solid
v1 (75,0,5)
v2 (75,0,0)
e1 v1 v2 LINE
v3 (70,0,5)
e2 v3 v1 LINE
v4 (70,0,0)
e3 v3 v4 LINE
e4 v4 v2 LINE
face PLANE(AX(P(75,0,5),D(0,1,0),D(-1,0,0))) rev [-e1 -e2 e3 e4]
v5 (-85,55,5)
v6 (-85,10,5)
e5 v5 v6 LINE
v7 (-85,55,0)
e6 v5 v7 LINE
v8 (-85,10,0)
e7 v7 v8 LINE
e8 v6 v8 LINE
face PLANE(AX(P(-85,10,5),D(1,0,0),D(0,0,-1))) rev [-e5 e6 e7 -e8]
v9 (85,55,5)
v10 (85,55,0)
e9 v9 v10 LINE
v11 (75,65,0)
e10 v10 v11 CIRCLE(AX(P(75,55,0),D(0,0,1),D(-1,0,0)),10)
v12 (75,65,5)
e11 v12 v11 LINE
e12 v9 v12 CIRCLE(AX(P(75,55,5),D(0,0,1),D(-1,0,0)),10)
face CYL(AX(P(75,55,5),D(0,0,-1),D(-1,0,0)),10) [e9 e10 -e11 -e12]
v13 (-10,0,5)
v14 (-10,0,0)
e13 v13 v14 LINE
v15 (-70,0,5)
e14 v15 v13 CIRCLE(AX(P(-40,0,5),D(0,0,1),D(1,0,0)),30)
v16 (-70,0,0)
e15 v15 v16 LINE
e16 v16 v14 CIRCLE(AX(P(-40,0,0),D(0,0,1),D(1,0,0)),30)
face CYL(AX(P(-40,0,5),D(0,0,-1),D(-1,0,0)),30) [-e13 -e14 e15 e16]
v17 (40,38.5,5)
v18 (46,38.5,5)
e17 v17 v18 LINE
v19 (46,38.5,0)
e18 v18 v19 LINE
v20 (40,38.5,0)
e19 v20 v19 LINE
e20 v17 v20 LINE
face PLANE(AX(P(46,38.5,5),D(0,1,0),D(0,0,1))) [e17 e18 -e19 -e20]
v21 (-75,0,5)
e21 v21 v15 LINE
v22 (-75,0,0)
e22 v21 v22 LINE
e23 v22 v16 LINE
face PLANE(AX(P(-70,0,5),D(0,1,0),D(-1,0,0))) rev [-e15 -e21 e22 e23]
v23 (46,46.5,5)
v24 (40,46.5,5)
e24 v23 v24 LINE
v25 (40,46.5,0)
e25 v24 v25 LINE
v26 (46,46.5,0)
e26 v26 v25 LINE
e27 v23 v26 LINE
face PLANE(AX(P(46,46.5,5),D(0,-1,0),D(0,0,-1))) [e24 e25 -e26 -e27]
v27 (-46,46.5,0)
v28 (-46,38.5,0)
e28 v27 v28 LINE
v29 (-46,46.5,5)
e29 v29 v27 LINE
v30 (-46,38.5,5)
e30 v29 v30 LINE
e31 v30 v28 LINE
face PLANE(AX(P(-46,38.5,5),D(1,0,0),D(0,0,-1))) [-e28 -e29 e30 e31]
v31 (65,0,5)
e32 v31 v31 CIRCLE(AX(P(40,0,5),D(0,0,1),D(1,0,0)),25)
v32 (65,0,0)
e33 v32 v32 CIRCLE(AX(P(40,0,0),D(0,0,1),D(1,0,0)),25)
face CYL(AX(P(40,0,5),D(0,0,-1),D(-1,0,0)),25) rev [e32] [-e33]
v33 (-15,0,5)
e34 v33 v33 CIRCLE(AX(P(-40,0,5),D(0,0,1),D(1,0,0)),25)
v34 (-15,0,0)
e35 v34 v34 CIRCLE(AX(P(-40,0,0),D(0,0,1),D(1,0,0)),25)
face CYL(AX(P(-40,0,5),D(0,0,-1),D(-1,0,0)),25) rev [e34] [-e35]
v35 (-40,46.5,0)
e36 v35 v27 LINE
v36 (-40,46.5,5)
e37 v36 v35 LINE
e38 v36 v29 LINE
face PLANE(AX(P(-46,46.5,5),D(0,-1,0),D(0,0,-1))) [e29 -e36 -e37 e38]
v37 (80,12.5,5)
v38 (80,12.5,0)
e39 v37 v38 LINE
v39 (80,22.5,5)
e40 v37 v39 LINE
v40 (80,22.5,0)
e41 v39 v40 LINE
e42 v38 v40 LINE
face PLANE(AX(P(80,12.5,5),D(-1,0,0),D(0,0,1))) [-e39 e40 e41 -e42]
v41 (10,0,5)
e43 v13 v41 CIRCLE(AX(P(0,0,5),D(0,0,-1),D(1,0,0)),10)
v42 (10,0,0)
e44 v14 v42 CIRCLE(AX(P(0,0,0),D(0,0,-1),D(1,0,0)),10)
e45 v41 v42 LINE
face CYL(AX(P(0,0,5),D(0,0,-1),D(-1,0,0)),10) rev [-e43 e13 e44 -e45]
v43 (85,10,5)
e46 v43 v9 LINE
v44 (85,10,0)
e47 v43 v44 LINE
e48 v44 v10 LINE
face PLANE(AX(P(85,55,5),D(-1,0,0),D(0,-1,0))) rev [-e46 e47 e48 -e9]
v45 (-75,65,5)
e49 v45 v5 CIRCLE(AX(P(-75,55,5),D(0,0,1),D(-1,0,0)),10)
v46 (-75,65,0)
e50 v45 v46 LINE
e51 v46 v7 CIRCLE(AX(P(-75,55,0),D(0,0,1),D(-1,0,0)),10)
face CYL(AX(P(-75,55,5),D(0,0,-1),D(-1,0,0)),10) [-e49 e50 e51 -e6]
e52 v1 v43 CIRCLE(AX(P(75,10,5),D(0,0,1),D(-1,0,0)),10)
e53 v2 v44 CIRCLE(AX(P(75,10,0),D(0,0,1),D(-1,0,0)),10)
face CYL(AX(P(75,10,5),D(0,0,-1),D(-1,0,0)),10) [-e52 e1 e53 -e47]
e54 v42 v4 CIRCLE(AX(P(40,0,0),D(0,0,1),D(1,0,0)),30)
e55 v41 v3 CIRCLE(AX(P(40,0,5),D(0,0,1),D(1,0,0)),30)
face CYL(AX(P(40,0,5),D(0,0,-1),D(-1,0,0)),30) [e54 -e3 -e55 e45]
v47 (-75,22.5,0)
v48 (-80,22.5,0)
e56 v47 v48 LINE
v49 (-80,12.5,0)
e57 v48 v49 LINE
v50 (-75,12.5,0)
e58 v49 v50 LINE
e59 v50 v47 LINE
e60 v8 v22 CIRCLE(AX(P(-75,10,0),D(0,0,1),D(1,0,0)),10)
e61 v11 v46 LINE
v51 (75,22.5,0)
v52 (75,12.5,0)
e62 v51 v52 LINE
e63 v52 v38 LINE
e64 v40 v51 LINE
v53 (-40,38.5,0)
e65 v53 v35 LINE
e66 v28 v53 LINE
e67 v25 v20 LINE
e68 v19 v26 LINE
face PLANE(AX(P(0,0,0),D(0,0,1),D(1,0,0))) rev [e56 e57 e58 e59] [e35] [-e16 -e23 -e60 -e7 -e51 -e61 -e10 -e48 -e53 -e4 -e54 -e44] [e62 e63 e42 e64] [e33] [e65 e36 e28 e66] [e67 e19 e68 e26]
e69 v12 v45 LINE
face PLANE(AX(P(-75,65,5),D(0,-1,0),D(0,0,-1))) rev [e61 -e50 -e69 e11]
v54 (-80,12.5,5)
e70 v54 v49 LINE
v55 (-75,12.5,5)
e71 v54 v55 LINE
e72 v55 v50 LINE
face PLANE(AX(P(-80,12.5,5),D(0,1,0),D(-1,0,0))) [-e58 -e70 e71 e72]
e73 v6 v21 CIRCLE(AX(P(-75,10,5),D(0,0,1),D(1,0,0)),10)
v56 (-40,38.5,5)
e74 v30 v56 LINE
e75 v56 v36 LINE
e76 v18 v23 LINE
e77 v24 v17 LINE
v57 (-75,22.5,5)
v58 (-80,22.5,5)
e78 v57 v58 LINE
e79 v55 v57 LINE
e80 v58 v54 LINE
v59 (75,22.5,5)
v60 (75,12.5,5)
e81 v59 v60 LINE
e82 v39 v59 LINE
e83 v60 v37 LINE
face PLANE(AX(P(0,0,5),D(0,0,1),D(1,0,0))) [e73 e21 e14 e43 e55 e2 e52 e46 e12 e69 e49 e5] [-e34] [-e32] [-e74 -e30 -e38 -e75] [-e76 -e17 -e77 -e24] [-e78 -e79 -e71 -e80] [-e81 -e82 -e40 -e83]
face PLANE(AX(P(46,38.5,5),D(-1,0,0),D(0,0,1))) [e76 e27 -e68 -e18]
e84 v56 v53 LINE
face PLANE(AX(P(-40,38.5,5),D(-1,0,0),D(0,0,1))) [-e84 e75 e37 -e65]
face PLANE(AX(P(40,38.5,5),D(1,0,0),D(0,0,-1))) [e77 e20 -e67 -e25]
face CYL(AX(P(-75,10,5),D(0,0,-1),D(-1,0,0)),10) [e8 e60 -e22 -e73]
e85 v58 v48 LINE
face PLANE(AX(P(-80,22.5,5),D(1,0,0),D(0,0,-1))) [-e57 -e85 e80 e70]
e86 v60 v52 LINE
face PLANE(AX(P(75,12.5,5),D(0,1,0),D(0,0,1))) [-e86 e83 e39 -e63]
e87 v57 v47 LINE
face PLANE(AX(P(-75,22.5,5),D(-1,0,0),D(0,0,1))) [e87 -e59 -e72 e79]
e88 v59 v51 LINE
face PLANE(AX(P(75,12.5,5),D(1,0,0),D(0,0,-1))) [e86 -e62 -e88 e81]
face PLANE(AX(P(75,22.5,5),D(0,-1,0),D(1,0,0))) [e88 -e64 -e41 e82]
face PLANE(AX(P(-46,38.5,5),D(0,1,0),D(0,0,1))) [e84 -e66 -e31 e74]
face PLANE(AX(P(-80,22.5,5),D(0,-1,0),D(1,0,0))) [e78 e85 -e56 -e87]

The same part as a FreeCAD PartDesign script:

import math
import FreeCAD as App
import Part
import Sketcher
from FreeCAD import Vector

doc = App.newDocument("Part")
body = doc.addObject("PartDesign::Body", "Body")

# Sketch on XY plane
sketch1 = body.newObject("Sketcher::SketchObject", "Sketch")
sketch1.AttachmentSupport = (doc.getObject("XY_Plane"), [""])
sketch1.MapMode = "FlatFace"
sketch1.addGeometry([
    Part.LineSegment(Vector(-85, 55, 0), Vector(-85, 10, 0)),  # 0
    Part.ArcOfCircle(Part.Circle(Vector(-75, 10, 0), Vector(0, 0, 1), 10), math.radians(180), math.radians(270)),  # 1
    Part.LineSegment(Vector(-75, 0, 0), Vector(-70, 0, 0)),  # 2
    Part.ArcOfCircle(Part.Circle(Vector(-40, 0, 0), Vector(0, 0, 1), 30), math.radians(180), math.radians(360)),  # 3
    Part.ArcOfCircle(Part.Circle(Vector(0, 0, 0), Vector(0, 0, 1), 10), math.radians(0), math.radians(180)),  # 4
    Part.ArcOfCircle(Part.Circle(Vector(40, 0, 0), Vector(0, 0, 1), 30), math.radians(180), math.radians(360)),  # 5
    Part.LineSegment(Vector(70, 0, 0), Vector(75, 0, 0)),  # 6
    Part.ArcOfCircle(Part.Circle(Vector(75, 10, 0), Vector(0, 0, 1), 10), math.radians(-90), math.radians(0)),  # 7
    Part.LineSegment(Vector(85, 10, 0), Vector(85, 55, 0)),  # 8
    Part.ArcOfCircle(Part.Circle(Vector(75, 55, 0), Vector(0, 0, 1), 10), math.radians(0), math.radians(90)),  # 9
    Part.LineSegment(Vector(75, 65, 0), Vector(-75, 65, 0)),  # 10
    Part.ArcOfCircle(Part.Circle(Vector(-75, 55, 0), Vector(0, 0, 1), 10), math.radians(90), math.radians(180)),  # 11
    Part.Circle(Vector(40, 0, 0), Vector(0, 0, 1), 25),  # 12
    Part.Circle(Vector(-40, 0, 0), Vector(0, 0, 1), 25),  # 13
    Part.LineSegment(Vector(75, 12, 0), Vector(75, 22, 0)),  # 14
    Part.LineSegment(Vector(75, 22, 0), Vector(80, 22, 0)),  # 15
    Part.LineSegment(Vector(80, 22, 0), Vector(80, 12, 0)),  # 16
    Part.LineSegment(Vector(80, 12, 0), Vector(75, 12, 0)),  # 17
    Part.LineSegment(Vector(40, 38, 0), Vector(40, 46, 0)),  # 18
    Part.LineSegment(Vector(40, 46, 0), Vector(46, 46, 0)),  # 19
    Part.LineSegment(Vector(46, 46, 0), Vector(46, 38, 0)),  # 20
    Part.LineSegment(Vector(46, 38, 0), Vector(40, 38, 0)),  # 21
    Part.LineSegment(Vector(-80, 12, 0), Vector(-80, 22, 0)),  # 22
    Part.LineSegment(Vector(-80, 22, 0), Vector(-75, 22, 0)),  # 23
    Part.LineSegment(Vector(-75, 22, 0), Vector(-75, 12, 0)),  # 24
    Part.LineSegment(Vector(-75, 12, 0), Vector(-80, 12, 0)),  # 25
    Part.LineSegment(Vector(-46, 38, 0), Vector(-46, 46, 0)),  # 26
    Part.LineSegment(Vector(-46, 46, 0), Vector(-40, 46, 0)),  # 27
    Part.LineSegment(Vector(-40, 46, 0), Vector(-40, 38, 0)),  # 28
    Part.LineSegment(Vector(-40, 38, 0), Vector(-46, 38, 0)),  # 29
], False)
sketch1.addConstraint([
    Sketcher.Constraint("Tangent", 0, 2, 1, 1),
    Sketcher.Constraint("Tangent", 1, 2, 2, 1),
    Sketcher.Constraint("Coincident", 2, 2, 3, 1),
    Sketcher.Constraint("Tangent", 3, 2, 4, 2),
    Sketcher.Constraint("Tangent", 4, 1, 5, 1),
    Sketcher.Constraint("Coincident", 5, 2, 6, 1),
    Sketcher.Constraint("Tangent", 6, 2, 7, 1),
    Sketcher.Constraint("Tangent", 7, 2, 8, 1),
    Sketcher.Constraint("Tangent", 8, 2, 9, 1),
    Sketcher.Constraint("Tangent", 9, 2, 10, 1),
    Sketcher.Constraint("Tangent", 10, 2, 11, 1),
    Sketcher.Constraint("Tangent", 11, 2, 0, 1),
    Sketcher.Constraint("Coincident", 14, 2, 15, 1),
    Sketcher.Constraint("Coincident", 15, 2, 16, 1),
    Sketcher.Constraint("Coincident", 16, 2, 17, 1),
    Sketcher.Constraint("Coincident", 17, 2, 14, 1),
    Sketcher.Constraint("Coincident", 18, 2, 19, 1),
    Sketcher.Constraint("Coincident", 19, 2, 20, 1),
    Sketcher.Constraint("Coincident", 20, 2, 21, 1),
    Sketcher.Constraint("Coincident", 21, 2, 18, 1),
    Sketcher.Constraint("Coincident", 22, 2, 23, 1),
    Sketcher.Constraint("Coincident", 23, 2, 24, 1),
    Sketcher.Constraint("Coincident", 24, 2, 25, 1),
    Sketcher.Constraint("Coincident", 25, 2, 22, 1),
    Sketcher.Constraint("Coincident", 26, 2, 27, 1),
    Sketcher.Constraint("Coincident", 27, 2, 28, 1),
    Sketcher.Constraint("Coincident", 28, 2, 29, 1),
    Sketcher.Constraint("Coincident", 29, 2, 26, 1),
    Sketcher.Constraint("Vertical", 0),
    Sketcher.Constraint("Horizontal", 2),
    Sketcher.Constraint("Horizontal", 6),
    Sketcher.Constraint("Vertical", 8),
    Sketcher.Constraint("Horizontal", 10),
    Sketcher.Constraint("Vertical", 14),
    Sketcher.Constraint("Horizontal", 15),
    Sketcher.Constraint("Vertical", 16),
    Sketcher.Constraint("Horizontal", 17),
    Sketcher.Constraint("Vertical", 18),
    Sketcher.Constraint("Horizontal", 19),
    Sketcher.Constraint("Vertical", 20),
    Sketcher.Constraint("Horizontal", 21),
    Sketcher.Constraint("Vertical", 22),
    Sketcher.Constraint("Horizontal", 23),
    Sketcher.Constraint("Vertical", 24),
    Sketcher.Constraint("Horizontal", 25),
    Sketcher.Constraint("Vertical", 26),
    Sketcher.Constraint("Horizontal", 27),
    Sketcher.Constraint("Vertical", 28),
    Sketcher.Constraint("Horizontal", 29),
    Sketcher.Constraint("Coincident", 4, 3, -1, 1),
    Sketcher.Constraint("Coincident", 12, 3, 5, 3),
    Sketcher.Constraint("Coincident", 13, 3, 3, 3),
    Sketcher.Constraint("Equal", 1, 4),
    Sketcher.Constraint("Equal", 3, 5),
    Sketcher.Constraint("Equal", 4, 7),
    Sketcher.Constraint("Equal", 7, 9),
    Sketcher.Constraint("Equal", 9, 11),
    Sketcher.Constraint("Equal", 12, 13),
    Sketcher.Constraint("Symmetric", 1, 2, 6, 2, -1, 1),
    Sketcher.Constraint("Symmetric", 15, 2, 22, 2, -2),
    Sketcher.Constraint("Symmetric", 17, 2, 24, 2, -2),
    Sketcher.Constraint("Symmetric", 19, 2, 26, 2, -2),
    Sketcher.Constraint("Symmetric", 21, 2, 28, 2, -2),
    Sketcher.Constraint("PointOnObject", 3, 3, -1),
    Sketcher.Constraint("PointOnObject", 5, 3, -1),
    Sketcher.Constraint("PointOnObject", 1, 2, -1),
    Sketcher.Constraint("Vertical", 9, 2, 14, 2),
    Sketcher.Constraint("Vertical", 12, 3, 18, 2),
    Sketcher.Constraint("Equal", 6, 15),
    Sketcher.Constraint("Diameter", 12, 50.0),
    Sketcher.Constraint("Radius", 1, 10.0),
    Sketcher.Constraint("Radius", 3, 30.0),
    Sketcher.Constraint("DistanceX", 2, 1, 2, 2, 5.0),
    Sketcher.Constraint("DistanceX", 19, 1, 19, 2, 6.0),
    Sketcher.Constraint("DistanceY", 0, 2, 0, 1, 45.0),
    Sketcher.Constraint("DistanceY", 14, 1, 14, 2, 10.0),
    Sketcher.Constraint("DistanceY", 18, 1, 18, 2, 8.0),
    Sketcher.Constraint("DistanceY", 14, 2, 18, 2, 24.0),
    Sketcher.Constraint("DistanceY", -1, 1, 14, 2, 22.5),
])
pad1 = body.newObject("PartDesign::Pad", "Pad")
pad1.Profile = sketch1
pad1.Length = 5

doc.recompute()
